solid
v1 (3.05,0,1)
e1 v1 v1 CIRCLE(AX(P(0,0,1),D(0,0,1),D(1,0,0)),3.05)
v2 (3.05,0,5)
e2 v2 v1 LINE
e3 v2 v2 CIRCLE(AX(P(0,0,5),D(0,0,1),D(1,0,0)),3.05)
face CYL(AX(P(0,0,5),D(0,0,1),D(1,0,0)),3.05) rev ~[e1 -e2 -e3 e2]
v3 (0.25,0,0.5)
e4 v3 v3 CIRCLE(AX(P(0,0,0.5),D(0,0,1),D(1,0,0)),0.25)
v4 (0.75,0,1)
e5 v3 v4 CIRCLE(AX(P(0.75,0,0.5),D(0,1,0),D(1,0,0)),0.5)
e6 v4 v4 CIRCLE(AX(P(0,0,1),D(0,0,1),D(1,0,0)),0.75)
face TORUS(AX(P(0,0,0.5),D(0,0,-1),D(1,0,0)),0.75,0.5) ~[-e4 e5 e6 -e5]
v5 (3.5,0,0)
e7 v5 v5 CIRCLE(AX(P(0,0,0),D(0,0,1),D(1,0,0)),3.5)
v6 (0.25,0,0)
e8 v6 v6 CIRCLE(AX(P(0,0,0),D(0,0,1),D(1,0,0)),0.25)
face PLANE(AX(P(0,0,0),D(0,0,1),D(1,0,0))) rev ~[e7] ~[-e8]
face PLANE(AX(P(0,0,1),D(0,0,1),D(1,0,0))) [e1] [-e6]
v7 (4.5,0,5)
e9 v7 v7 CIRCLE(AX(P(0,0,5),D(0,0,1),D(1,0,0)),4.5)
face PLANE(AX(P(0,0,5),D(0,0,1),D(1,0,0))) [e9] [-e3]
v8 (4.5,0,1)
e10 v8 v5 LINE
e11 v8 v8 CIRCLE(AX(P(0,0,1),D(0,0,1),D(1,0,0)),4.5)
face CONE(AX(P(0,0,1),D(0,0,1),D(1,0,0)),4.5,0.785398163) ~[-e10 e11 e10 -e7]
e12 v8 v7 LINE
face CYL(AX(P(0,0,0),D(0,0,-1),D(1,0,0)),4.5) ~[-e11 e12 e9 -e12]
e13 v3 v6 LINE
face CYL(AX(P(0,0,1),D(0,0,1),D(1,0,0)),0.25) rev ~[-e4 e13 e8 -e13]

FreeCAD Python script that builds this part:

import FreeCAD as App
import Part
import Sketcher
Q = App.Units.Quantity


def edges_at(feature, points):
    """Names of the edges that pass closest to the given points."""
    edges = feature.Shape.Edges
    near = lambda p: min(range(len(edges)), key=lambda i: edges[i].distToShape(Part.Vertex(*p))[0])
    return sorted({f"Edge{near(p) + 1}" for p in points})

doc = App.newDocument("Part")
body = doc.addObject("PartDesign::Body", "Body")

# Sketch on XY plane
sketch1 = body.newObject("Sketcher::SketchObject", "Sketch")
sketch1.AttachmentSupport = (doc.getObject("XY_Plane"), [""])
sketch1.MapMode = "FlatFace"
sketch1.addGeometry(Part.Circle(App.Vector(0, 0, 0), App.Vector(0, 0, 1), 4.5), False)
sketch1.addConstraint([
    Sketcher.Constraint("Coincident", 0, 3, -1, 1),
    Sketcher.Constraint("Diameter", 0, Q("9 mm")),
])
pad1 = body.newObject("PartDesign::Pad", "Pad")
pad1.Profile = sketch1
pad1.Length = 5

# Sketch on XY plane
sketch2 = body.newObject("Sketcher::SketchObject", "Sketch001")
sketch2.AttachmentSupport = (doc.getObject("XY_Plane"), [""])
sketch2.MapMode = "FlatFace"
sketch2.AttachmentOffset = App.Placement(App.Vector(0, 0, 5), App.Rotation())
sketch2.addGeometry(Part.Circle(App.Vector(0, 0, 0), App.Vector(0, 0, 1), 3.05), False)
sketch2.addConstraint([
    Sketcher.Constraint("Coincident", 0, 3, -1, 1),
    Sketcher.Constraint("Diameter", 0, Q("6.1 mm")),
])
pocket1 = body.newObject("PartDesign::Pocket", "Pocket")
pocket1.Profile = sketch2
pocket1.Length = 4
doc.recompute()

chamfer = body.newObject("PartDesign::Chamfer", "Chamfer")
chamfer.Base = (pocket1, edges_at(pocket1, [(-4.5, 0, 0)]))
chamfer.Size = 1

# Sketch on XY plane
sketch3 = body.newObject("Sketcher::SketchObject", "Sketch002")
sketch3.AttachmentSupport = (doc.getObject("XY_Plane"), [""])
sketch3.MapMode = "FlatFace"
sketch3.AttachmentOffset = App.Placement(App.Vector(0, 0, 1), App.Rotation())
sketch3.addGeometry(Part.Circle(App.Vector(0, 0, 0), App.Vector(0, 0, 1), 0.25), False)
sketch3.addConstraint([
    Sketcher.Constraint("Coincident", 0, 3, -1, 1),
    Sketcher.Constraint("Diameter", 0, Q("0.5 mm")),
])
pocket2 = body.newObject("PartDesign::Pocket", "Pocket001")
pocket2.Profile = sketch3
pocket2.Type = "ThroughAll"
doc.recompute()

fillet = body.newObject("PartDesign::Fillet", "Fillet")
fillet.Base = (pocket2, edges_at(pocket2, [(-0.25, 0, 1)]))
fillet.Radius = 0.5

doc.recompute()
